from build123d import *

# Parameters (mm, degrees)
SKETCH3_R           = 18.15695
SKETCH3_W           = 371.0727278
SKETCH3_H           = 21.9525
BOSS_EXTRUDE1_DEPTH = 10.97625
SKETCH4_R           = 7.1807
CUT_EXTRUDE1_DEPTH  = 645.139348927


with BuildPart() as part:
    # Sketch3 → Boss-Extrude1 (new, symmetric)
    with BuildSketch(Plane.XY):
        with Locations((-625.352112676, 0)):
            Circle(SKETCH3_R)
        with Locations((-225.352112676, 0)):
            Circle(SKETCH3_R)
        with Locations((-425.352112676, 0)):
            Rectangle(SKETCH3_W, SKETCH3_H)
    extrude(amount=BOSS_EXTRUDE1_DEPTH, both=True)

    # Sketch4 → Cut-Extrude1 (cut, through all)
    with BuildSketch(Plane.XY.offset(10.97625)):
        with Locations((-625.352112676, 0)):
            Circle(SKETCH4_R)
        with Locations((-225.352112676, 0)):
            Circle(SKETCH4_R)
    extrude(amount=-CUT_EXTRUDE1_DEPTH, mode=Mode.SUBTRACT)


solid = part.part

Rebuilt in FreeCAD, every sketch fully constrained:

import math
import FreeCAD as App
import Part
import Sketcher

V = App.Vector

doc = App.newDocument("Part")
body = doc.addObject("PartDesign::Body", "Body")

# Sketch on XY plane
sketch1 = doc.addObject("Sketcher::SketchObject", "Sketch")
body.addObject(sketch1)
sketch1.AttachmentSupport = (doc.XY_Plane, [""])
sketch1.MapMode = "FlatFace"
sketch1.addGeometry(Part.LineSegment(V(-610.888477, -10.97625, 0), V(-239.815749, -10.97625, 0)), False)
sketch1.addGeometry(Part.ArcOfCircle(Part.Circle(V(-225.352113, 0, 0), V(0, 0, 1), 18.15695), math.radians(-142.805649), math.radians(142.805649)), False)
sketch1.addGeometry(Part.LineSegment(V(-239.815749, 10.97625, 0), V(-610.888477, 10.97625, 0)), False)
sketch1.addGeometry(Part.ArcOfCircle(Part.Circle(V(-625.352113, 0, 0), V(0, 0, 1), 18.15695), math.radians(37.194351), math.radians(322.805649)), False)
sketch1.addConstraint(Sketcher.Constraint("Coincident", 0, 2, 1, 1))
sketch1.addConstraint(Sketcher.Constraint("Coincident", 1, 2, 2, 1))
sketch1.addConstraint(Sketcher.Constraint("Coincident", 2, 2, 3, 1))
sketch1.addConstraint(Sketcher.Constraint("Coincident", 3, 2, 0, 1))
sketch1.addConstraint(Sketcher.Constraint("Horizontal", 0))
sketch1.addConstraint(Sketcher.Constraint("Horizontal", 2))
sketch1.addConstraint(Sketcher.Constraint("Equal", 1, 3))
sketch1.addConstraint(Sketcher.Constraint("Symmetric", 0, 2, 1, 2, -1))
sketch1.addConstraint(Sketcher.Constraint("PointOnObject", 3, 3, -1))
sketch1.addConstraint(Sketcher.Constraint("DistanceX", 3, 3, 1, 3, 400.0))
sketch1.addConstraint(Sketcher.Constraint("Radius", 1, 18.15695))
sketch1.addConstraint(Sketcher.Constraint("DistanceY", 0, 2, 1, 2, 21.9525))
sketch1.addConstraint(Sketcher.Constraint("DistanceX", 0, 2, -1, 1, 239.815749))
pad1 = doc.addObject("PartDesign::Pad", "Pad")
body.addObject(pad1)
pad1.Profile = sketch1
pad1.Length = 21.9525
pad1.Midplane = True

# Sketch on XY plane
sketch2 = doc.addObject("Sketcher::SketchObject", "Sketch001")
body.addObject(sketch2)
sketch2.AttachmentSupport = (doc.XY_Plane, [""])
sketch2.MapMode = "FlatFace"
sketch2.AttachmentOffset = App.Placement(V(0, 0, 10.97625), App.Rotation())
sketch2.addGeometry(Part.Circle(V(-625.352113, 0, 0), V(0, 0, 1), 7.1807), False)
sketch2.addGeometry(Part.Circle(V(-225.352113, 0, 0), V(0, 0, 1), 7.1807), False)
sketch2.addConstraint(Sketcher.Constraint("Equal", 0, 1))
sketch2.addConstraint(Sketcher.Constraint("PointOnObject", 0, 3, -1))
sketch2.addConstraint(Sketcher.Constraint("PointOnObject", 1, 3, -1))
sketch2.addConstraint(Sketcher.Constraint("DistanceX", 0, 3, 1, 3, 400.0))
sketch2.addConstraint(Sketcher.Constraint("Diameter", 0, 14.3614))
sketch2.addConstraint(Sketcher.Constraint("DistanceX", 0, 3, -1, 1, 625.352113))
pocket1 = doc.addObject("PartDesign::Pocket", "Pocket")
body.addObject(pocket1)
pocket1.Profile = sketch2
pocket1.Type = "ThroughAll"

doc.recompute()
